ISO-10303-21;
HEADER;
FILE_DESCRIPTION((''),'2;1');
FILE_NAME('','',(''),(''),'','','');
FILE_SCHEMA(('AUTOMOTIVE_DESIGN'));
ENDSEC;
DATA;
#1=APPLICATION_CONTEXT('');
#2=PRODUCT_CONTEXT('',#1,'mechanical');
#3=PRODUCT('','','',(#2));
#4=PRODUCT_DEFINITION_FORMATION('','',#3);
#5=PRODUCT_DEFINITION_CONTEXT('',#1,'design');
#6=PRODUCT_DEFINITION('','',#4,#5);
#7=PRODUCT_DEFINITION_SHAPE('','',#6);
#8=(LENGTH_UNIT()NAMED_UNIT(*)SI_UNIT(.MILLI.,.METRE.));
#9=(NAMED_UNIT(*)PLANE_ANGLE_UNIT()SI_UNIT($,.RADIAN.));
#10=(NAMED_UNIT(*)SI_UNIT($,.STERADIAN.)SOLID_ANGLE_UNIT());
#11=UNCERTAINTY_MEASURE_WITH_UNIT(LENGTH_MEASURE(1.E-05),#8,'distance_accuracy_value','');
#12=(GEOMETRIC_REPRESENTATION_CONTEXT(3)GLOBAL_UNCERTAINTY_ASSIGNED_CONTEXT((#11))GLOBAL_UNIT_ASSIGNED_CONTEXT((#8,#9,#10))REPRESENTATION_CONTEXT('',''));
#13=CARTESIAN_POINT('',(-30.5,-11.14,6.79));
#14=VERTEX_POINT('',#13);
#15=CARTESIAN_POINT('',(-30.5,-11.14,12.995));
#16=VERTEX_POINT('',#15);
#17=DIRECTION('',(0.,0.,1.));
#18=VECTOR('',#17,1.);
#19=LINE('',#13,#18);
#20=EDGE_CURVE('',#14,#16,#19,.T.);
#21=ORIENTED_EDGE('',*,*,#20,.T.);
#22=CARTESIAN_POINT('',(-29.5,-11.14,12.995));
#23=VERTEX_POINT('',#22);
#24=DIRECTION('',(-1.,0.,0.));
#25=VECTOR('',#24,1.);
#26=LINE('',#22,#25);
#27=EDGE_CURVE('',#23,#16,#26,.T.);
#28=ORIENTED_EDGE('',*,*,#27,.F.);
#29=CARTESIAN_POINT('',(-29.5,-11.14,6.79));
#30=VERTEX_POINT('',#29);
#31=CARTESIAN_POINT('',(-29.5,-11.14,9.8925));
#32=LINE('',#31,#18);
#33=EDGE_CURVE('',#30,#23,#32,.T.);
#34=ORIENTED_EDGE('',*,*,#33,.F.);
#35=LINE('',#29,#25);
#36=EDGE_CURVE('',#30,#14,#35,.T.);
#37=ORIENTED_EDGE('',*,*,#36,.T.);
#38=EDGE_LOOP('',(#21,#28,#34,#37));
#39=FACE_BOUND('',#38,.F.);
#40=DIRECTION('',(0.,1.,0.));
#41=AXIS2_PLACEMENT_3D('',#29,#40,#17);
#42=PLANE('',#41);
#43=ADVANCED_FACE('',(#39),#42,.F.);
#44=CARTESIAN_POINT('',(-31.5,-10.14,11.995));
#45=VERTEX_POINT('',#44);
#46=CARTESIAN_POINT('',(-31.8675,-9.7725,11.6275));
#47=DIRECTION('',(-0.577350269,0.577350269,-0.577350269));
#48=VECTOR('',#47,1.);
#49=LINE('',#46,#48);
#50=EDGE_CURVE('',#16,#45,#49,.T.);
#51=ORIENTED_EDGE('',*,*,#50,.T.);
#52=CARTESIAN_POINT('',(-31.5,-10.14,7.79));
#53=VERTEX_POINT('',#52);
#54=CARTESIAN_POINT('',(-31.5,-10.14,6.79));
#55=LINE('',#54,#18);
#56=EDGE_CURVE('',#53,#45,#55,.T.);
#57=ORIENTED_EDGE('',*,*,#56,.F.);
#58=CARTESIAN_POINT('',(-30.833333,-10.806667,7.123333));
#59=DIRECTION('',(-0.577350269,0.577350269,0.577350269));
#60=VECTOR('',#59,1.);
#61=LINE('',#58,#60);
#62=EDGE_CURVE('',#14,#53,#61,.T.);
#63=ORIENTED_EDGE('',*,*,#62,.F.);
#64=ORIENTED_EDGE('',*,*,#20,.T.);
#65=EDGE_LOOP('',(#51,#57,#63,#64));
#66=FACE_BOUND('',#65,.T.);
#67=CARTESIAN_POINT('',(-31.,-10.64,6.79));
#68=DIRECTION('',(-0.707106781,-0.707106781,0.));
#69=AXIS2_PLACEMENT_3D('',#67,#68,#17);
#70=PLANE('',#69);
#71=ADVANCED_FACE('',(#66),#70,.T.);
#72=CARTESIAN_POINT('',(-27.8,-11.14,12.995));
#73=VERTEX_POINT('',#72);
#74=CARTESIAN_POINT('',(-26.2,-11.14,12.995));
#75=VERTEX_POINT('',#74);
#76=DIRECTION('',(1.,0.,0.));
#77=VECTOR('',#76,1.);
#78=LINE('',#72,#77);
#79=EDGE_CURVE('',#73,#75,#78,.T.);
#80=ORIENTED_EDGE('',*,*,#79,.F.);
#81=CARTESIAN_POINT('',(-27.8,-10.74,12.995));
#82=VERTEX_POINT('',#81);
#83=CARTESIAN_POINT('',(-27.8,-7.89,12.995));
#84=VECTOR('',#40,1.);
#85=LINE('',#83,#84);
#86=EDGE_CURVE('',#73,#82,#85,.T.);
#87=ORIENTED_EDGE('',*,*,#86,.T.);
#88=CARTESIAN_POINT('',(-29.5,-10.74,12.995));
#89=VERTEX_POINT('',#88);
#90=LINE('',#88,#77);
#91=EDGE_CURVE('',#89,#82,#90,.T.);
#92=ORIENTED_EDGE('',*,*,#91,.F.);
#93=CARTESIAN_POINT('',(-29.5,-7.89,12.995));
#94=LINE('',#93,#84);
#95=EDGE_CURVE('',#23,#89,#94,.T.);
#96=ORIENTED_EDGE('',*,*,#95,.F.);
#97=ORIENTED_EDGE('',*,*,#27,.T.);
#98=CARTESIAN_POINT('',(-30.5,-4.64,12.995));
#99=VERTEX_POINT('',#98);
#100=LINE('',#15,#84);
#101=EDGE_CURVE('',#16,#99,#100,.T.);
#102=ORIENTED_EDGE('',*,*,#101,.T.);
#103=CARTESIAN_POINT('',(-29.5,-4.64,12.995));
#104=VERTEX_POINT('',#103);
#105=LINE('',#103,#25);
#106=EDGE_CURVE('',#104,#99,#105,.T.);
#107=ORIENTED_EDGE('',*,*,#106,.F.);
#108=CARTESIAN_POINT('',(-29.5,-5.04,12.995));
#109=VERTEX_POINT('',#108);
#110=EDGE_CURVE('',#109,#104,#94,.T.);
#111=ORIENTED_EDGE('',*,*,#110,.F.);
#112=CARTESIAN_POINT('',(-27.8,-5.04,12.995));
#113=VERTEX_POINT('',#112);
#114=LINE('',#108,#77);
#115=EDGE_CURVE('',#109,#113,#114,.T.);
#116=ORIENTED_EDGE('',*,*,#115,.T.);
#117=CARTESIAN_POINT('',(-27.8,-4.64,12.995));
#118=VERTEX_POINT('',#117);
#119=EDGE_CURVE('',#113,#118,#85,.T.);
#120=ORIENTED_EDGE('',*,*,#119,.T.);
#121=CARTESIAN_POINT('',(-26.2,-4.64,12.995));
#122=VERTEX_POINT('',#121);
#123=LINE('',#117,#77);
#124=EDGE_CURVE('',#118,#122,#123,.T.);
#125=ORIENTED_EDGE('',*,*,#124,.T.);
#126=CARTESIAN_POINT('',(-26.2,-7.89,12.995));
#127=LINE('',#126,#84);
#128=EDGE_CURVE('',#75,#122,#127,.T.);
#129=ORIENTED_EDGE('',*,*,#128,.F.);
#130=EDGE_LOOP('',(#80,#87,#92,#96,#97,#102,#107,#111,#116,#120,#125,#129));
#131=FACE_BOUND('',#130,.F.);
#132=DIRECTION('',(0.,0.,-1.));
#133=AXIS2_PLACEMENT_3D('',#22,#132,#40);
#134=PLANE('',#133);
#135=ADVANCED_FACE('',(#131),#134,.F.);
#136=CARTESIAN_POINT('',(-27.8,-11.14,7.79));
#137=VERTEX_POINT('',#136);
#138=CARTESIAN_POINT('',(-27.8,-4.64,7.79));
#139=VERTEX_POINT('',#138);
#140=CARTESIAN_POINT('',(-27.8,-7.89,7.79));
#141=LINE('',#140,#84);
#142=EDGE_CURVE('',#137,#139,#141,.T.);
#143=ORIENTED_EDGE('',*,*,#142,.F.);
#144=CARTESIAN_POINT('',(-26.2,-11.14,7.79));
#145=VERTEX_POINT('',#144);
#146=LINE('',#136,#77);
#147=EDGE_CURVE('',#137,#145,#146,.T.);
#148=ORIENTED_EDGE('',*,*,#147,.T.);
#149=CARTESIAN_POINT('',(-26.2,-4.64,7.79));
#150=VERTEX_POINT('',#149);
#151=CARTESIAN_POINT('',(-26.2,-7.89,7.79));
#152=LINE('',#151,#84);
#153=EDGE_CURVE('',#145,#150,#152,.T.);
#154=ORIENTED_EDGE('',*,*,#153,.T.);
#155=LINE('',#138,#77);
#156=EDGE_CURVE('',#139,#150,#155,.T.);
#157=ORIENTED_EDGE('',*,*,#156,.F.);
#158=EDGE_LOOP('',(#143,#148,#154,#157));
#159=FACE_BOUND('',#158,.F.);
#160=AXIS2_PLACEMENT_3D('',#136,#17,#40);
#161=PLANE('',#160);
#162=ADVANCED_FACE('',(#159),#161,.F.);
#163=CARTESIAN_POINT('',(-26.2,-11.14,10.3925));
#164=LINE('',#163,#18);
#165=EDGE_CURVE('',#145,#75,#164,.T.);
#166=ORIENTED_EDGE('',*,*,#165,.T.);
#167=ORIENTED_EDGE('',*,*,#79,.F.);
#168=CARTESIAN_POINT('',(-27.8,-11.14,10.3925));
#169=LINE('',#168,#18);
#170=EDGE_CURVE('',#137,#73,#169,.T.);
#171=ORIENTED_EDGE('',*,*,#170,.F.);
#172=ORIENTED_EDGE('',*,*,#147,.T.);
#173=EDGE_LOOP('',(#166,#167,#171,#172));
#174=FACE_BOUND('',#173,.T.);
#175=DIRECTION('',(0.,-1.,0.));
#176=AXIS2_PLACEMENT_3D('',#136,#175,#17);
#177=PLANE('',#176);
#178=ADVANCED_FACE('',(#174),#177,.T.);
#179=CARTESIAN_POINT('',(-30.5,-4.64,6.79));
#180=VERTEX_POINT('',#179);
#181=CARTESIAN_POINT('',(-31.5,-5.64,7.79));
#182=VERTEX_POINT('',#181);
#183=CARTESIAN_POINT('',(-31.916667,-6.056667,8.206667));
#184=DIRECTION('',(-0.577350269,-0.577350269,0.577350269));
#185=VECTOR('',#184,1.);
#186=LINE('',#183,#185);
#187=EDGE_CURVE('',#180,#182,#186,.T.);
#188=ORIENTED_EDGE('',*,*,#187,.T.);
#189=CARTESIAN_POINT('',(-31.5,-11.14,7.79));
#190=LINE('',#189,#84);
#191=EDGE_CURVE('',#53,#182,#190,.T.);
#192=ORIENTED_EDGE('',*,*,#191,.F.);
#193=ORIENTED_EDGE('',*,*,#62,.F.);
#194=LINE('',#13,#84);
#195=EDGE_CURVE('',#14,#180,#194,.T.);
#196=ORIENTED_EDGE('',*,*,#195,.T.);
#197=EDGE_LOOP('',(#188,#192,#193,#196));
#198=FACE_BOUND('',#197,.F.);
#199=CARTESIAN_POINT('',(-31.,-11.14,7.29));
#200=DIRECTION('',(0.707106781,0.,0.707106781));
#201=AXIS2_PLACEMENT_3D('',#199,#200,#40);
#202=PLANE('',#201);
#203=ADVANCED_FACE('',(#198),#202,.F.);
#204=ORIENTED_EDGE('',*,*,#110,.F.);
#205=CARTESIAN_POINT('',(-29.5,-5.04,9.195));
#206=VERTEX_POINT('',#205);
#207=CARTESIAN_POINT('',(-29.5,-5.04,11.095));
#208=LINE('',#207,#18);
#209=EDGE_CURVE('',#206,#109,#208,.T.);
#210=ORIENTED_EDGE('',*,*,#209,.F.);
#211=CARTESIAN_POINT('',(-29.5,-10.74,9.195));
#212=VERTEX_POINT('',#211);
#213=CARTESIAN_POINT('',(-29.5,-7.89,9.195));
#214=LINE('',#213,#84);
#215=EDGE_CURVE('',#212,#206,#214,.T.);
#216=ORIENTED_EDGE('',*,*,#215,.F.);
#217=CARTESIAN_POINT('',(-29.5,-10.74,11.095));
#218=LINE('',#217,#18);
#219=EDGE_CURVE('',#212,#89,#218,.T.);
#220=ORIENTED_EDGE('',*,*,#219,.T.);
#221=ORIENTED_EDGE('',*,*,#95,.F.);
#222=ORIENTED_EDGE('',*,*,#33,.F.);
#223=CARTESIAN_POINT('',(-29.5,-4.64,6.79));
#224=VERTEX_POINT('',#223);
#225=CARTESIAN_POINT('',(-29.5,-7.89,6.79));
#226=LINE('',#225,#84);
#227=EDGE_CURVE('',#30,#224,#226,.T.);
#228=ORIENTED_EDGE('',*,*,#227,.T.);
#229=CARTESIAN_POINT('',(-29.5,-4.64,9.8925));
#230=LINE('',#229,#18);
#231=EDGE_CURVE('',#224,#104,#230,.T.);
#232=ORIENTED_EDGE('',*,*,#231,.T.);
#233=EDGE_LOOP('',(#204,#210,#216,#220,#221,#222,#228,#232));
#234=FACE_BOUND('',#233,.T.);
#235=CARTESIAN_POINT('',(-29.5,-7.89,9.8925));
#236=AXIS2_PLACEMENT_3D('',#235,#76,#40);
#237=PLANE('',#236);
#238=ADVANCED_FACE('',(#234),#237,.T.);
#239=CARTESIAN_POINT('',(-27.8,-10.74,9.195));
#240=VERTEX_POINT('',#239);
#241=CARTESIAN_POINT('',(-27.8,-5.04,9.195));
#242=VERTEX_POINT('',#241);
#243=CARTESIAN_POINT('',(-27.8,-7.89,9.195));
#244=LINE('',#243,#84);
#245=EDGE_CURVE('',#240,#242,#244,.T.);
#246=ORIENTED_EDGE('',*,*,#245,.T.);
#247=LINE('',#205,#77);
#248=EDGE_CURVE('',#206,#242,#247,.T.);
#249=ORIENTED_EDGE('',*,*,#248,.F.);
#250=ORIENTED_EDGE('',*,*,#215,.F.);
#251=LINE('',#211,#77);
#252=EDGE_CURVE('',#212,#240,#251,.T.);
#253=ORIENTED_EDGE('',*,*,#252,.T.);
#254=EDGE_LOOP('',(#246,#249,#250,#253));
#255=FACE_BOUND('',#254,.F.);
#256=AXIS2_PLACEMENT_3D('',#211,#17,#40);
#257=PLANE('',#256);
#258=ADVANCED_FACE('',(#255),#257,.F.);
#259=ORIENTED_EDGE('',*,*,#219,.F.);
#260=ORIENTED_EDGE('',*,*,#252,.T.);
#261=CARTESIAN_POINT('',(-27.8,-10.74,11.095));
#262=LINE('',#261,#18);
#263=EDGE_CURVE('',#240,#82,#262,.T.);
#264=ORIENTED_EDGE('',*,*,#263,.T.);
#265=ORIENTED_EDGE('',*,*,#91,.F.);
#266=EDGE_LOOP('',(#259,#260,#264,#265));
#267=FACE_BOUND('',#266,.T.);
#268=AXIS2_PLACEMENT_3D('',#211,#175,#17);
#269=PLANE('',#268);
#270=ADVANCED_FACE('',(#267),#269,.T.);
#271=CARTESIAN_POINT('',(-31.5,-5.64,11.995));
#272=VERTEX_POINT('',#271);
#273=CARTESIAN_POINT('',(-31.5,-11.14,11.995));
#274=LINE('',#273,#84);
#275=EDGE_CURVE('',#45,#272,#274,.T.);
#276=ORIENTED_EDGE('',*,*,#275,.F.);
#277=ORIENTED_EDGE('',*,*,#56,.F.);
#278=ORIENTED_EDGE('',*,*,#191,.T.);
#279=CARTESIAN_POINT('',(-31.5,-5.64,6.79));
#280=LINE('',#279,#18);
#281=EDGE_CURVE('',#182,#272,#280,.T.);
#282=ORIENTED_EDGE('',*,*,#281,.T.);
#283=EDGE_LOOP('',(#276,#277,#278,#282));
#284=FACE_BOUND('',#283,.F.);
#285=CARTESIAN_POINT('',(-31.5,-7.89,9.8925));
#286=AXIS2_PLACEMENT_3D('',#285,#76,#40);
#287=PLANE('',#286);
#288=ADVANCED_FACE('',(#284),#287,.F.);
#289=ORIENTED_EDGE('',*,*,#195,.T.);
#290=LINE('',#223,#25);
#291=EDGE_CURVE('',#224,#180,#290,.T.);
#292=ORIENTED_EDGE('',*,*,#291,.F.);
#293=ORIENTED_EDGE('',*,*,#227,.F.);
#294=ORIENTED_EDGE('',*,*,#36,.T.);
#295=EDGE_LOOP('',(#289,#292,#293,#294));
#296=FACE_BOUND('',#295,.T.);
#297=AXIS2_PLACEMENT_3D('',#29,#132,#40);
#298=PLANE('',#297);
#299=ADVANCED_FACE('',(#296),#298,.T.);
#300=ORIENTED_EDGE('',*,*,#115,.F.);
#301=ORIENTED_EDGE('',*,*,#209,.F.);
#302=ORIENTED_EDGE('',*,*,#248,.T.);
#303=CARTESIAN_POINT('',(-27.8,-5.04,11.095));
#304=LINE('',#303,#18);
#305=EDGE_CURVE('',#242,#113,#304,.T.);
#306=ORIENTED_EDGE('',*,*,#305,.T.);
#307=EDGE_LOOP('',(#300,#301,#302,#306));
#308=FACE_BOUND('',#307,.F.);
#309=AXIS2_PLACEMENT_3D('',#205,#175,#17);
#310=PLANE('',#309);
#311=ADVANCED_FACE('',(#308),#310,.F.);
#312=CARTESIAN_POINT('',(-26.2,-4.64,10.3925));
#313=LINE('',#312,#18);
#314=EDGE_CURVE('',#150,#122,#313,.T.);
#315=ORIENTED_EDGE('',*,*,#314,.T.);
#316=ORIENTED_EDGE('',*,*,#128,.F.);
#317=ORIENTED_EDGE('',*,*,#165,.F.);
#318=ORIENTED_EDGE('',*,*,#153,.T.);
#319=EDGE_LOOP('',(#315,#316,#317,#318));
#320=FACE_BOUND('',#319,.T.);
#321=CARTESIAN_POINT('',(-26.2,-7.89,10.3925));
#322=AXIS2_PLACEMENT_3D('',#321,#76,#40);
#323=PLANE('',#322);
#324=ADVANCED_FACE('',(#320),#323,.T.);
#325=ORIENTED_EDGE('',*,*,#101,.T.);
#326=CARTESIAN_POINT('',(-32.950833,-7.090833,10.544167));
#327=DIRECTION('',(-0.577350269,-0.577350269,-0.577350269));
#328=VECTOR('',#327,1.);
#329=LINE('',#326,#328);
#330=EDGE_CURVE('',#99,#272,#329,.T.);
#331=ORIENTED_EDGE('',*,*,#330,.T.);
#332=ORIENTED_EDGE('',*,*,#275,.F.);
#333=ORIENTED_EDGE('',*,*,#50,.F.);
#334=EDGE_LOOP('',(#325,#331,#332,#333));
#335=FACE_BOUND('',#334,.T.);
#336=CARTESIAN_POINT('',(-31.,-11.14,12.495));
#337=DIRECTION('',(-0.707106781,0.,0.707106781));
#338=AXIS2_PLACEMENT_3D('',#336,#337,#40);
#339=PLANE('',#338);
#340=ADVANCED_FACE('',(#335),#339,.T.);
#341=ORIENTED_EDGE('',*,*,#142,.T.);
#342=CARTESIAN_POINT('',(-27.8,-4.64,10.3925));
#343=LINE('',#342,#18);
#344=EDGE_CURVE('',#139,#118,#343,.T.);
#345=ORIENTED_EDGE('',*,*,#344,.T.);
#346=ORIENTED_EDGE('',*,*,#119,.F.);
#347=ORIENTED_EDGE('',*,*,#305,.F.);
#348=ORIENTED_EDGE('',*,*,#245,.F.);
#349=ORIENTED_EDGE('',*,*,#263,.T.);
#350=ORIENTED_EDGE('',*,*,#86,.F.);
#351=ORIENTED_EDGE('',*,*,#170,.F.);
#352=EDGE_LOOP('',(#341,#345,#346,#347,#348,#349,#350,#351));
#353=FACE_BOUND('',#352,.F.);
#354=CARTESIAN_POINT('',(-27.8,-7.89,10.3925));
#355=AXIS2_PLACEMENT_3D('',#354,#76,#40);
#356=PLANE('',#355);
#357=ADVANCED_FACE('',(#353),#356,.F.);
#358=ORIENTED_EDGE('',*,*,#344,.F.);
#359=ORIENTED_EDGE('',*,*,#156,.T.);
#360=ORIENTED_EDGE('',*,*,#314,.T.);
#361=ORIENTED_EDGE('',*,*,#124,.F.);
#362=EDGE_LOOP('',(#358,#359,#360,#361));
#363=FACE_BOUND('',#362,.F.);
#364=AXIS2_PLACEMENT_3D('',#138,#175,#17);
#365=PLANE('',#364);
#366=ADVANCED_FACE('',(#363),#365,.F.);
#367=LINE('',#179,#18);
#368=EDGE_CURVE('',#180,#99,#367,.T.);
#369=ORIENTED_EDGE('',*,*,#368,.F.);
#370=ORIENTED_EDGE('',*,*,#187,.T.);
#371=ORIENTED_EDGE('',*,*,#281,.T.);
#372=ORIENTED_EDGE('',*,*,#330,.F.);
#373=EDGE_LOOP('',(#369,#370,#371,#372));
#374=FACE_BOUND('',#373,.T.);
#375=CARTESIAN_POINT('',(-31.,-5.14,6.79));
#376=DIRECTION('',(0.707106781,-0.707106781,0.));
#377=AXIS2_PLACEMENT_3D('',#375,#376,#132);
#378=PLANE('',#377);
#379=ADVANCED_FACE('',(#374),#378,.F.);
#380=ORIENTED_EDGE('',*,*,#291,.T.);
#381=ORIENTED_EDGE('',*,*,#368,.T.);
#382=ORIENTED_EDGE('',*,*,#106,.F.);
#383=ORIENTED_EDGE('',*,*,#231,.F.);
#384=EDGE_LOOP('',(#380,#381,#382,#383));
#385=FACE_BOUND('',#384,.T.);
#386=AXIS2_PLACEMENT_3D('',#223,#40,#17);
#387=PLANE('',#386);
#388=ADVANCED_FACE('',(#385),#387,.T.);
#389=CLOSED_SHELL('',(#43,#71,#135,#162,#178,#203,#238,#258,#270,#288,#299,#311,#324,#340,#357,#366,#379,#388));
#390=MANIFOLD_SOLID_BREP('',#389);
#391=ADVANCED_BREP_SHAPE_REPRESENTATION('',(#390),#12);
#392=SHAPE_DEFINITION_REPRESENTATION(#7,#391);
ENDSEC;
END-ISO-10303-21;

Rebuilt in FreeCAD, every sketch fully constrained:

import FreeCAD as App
import Part
import Sketcher
from FreeCAD import Vector


def edges_at(feature, points):
    """Names of the edges that pass closest to the given points."""
    edges = feature.Shape.Edges
    near = lambda p: min(range(len(edges)), key=lambda i: edges[i].distToShape(Part.Vertex(*p))[0])
    return sorted({f"Edge{near(p) + 1}" for p in points})


def add_polygon(sketch, points):
    """Adds a closed chain of lines whose ends are joined by coincident constraints."""
    first, n = sketch.GeometryCount, len(points)
    for a, b in zip(points, points[1:] + points[:1]):
        sketch.addGeometry(Part.LineSegment(App.Vector(*a, 0), App.Vector(*b, 0)), False)
    for i in range(n):
        sketch.addConstraint(Sketcher.Constraint("Coincident", first + i, 2, first + (i + 1) % n, 1))

doc = App.newDocument("Part")
params = doc.addObject("Spreadsheet::Sheet", "Params")
for row, (alias, value) in enumerate([
    ("sketch1_width", "5.7 mm"),
    ("sketch1_height", "3.8 mm"),
    ("pad1_length", "1.7 mm"),
    ("sketch2_width", "6.5 mm"),
    ("pad2_length", "1.6 mm"),
    ("sketch3_width", "6.5 mm"),
    ("pad3_length", "2 mm"),
    ("chamfer_size", "1 mm"),
], start=1):
    params.set(f"A{row}", alias)
    params.set(f"B{row}", "=" + value)
    params.setAlias(f"B{row}", alias)

body = doc.addObject("PartDesign::Body", "Body")

sketch1 = body.newObject("Sketcher::SketchObject", "Sketch")
sketch1.AttachmentSupport = (doc.getObject("YZ_Plane"), [""])
sketch1.MapMode = "FlatFace"
add_polygon(sketch1, [(-10.74, 12.995), (-10.74, 9.195), (-5.04, 9.195), (-5.04, 12.995)])
sketch1.addConstraint(Sketcher.Constraint("Vertical", 0))
sketch1.addConstraint(Sketcher.Constraint("Horizontal", 1))
sketch1.addConstraint(Sketcher.Constraint("Vertical", 2))
sketch1.addConstraint(Sketcher.Constraint("Horizontal", 3))
sketch1.addConstraint(Sketcher.Constraint("DistanceX", 1, 1, 1, 2, 5.7))
sketch1.addConstraint(Sketcher.Constraint("DistanceY", 0, 2, 0, 1, 3.8))
sketch1.addConstraint(Sketcher.Constraint("DistanceX", 0, 2, -1, 1, 10.74))
sketch1.addConstraint(Sketcher.Constraint("DistanceY", -1, 1, 0, 2, 9.195))
sketch1.setExpression("Constraints[8]", "Params.sketch1_width")
sketch1.setExpression("Constraints[9]", "Params.sketch1_height")
pad1 = body.newObject("PartDesign::Pad", "Pad")
pad1.Profile = sketch1
pad1.setExpression("Length", "Params.pad1_length")

sketch2 = body.newObject("Sketcher::SketchObject", "Sketch001")
sketch2.AttachmentSupport = (doc.getObject("YZ_Plane"), [""])
sketch2.MapMode = "FlatFace"
sketch2.AttachmentOffset = App.Placement(Vector(0, 0, 1.7), App.Rotation())
add_polygon(sketch2, [(-11.14, 12.995), (-11.14, 7.79), (-4.64, 7.79), (-4.64, 12.995)])
sketch2.addConstraint(Sketcher.Constraint("Vertical", 0))
sketch2.addConstraint(Sketcher.Constraint("Horizontal", 1))
sketch2.addConstraint(Sketcher.Constraint("Vertical", 2))
sketch2.addConstraint(Sketcher.Constraint("Horizontal", 3))
sketch2.addConstraint(Sketcher.Constraint("DistanceX", 1, 1, 1, 2, 6.5))
sketch2.addConstraint(Sketcher.Constraint("DistanceY", 0, 2, 0, 1, 5.205))
sketch2.addConstraint(Sketcher.Constraint("DistanceX", 0, 2, -1, 1, 11.14))
sketch2.addConstraint(Sketcher.Constraint("DistanceY", -1, 1, 0, 2, 7.79))
sketch2.setExpression("Constraints[8]", "Params.sketch2_width")
pad2 = body.newObject("PartDesign::Pad", "Pad001")
pad2.Profile = sketch2
pad2.setExpression("Length", "Params.pad2_length")

sketch3 = body.newObject("Sketcher::SketchObject", "Sketch002")
sketch3.AttachmentSupport = (doc.getObject("YZ_Plane"), [""])
sketch3.MapMode = "FlatFace"
add_polygon(sketch3, [(-11.14, 12.995), (-11.14, 6.79), (-4.64, 6.79), (-4.64, 12.995)])
sketch3.addConstraint(Sketcher.Constraint("Vertical", 0))
sketch3.addConstraint(Sketcher.Constraint("Horizontal", 1))
sketch3.addConstraint(Sketcher.Constraint("Vertical", 2))
sketch3.addConstraint(Sketcher.Constraint("Horizontal", 3))
sketch3.addConstraint(Sketcher.Constraint("DistanceX", 1, 1, 1, 2, 6.5))
sketch3.addConstraint(Sketcher.Constraint("DistanceY", 0, 2, 0, 1, 6.205))
sketch3.addConstraint(Sketcher.Constraint("DistanceX", 0, 2, -1, 1, 11.14))
sketch3.addConstraint(Sketcher.Constraint("DistanceY", -1, 1, 0, 2, 6.79))
sketch3.setExpression("Constraints[8]", "Params.sketch3_width")
pad3 = body.newObject("PartDesign::Pad", "Pad002")
pad3.Profile = sketch3
pad3.setExpression("Length", "Params.pad3_length")
pad3.Reversed = True
doc.recompute()

chamfer = body.newObject("PartDesign::Chamfer", "Chamfer")
chamfer.Base = (pad3, edges_at(pad3, [
    (-2, -7.89, 12.995),
    (-2, -11.14, 9.893),
    (-2, -7.89, 6.79),
    (-2, -4.64, 9.893),
]))
chamfer.setExpression("Size", "Params.chamfer_size")
body2 = doc.addObject("PartDesign::Body", "Body001")
doc.recompute()

body.Placement = App.Placement(Vector(-29.5, 0, 0), App.Rotation(Vector(0, 0, 1), 0))
boolean = body2.newObject("PartDesign::Boolean", "Boolean")
boolean.Type = "Fuse"
boolean.addObjects([body])

doc.recompute()
